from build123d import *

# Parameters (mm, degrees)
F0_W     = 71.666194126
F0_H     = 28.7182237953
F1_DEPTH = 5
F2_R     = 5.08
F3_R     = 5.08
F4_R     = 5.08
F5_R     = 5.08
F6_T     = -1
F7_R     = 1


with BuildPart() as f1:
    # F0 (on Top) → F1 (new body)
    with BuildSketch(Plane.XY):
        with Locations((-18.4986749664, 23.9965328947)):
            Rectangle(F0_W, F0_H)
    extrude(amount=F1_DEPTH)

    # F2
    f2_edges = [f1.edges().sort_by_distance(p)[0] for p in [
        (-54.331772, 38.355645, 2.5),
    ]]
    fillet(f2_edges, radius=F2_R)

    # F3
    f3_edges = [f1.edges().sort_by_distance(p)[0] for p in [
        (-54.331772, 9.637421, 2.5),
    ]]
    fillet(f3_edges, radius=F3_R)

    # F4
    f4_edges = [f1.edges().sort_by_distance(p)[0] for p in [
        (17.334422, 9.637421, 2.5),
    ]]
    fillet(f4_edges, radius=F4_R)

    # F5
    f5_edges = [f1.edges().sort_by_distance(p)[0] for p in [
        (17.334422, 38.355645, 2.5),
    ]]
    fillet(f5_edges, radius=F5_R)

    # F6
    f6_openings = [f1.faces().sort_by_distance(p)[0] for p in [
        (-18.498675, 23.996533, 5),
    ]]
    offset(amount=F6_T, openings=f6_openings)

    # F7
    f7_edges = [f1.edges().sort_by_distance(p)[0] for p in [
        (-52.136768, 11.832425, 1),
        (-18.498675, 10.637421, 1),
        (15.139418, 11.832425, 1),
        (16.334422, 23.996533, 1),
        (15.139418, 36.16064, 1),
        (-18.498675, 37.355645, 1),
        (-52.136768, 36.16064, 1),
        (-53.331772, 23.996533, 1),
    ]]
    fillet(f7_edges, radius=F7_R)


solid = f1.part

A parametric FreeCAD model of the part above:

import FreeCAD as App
import Part
import Sketcher


def edges_at(feature, points):
    """Names of the edges that pass closest to the given points."""
    edges = feature.Shape.Edges
    near = lambda p: min(range(len(edges)), key=lambda i: edges[i].distToShape(Part.Vertex(*p))[0])
    return sorted({f"Edge{near(p) + 1}" for p in points})


def faces_at(feature, points):
    """Names of the faces that lie closest to the given points."""
    faces = feature.Shape.Faces
    near = lambda p: min(range(len(faces)), key=lambda i: faces[i].distToShape(Part.Vertex(*p))[0])
    return sorted({f"Face{near(p) + 1}" for p in points})


def add_polygon(sketch, points):
    """Adds a closed chain of lines whose ends are joined by coincident constraints."""
    first, n = sketch.GeometryCount, len(points)
    for a, b in zip(points, points[1:] + points[:1]):
        sketch.addGeometry(Part.LineSegment(App.Vector(*a, 0), App.Vector(*b, 0)), False)
    for i in range(n):
        sketch.addConstraint(Sketcher.Constraint("Coincident", first + i, 2, first + (i + 1) % n, 1))

doc = App.newDocument("Part")
body = doc.addObject("PartDesign::Body", "Body")

# Sketch on XY plane
sketch1 = doc.addObject("Sketcher::SketchObject", "Sketch")
body.addObject(sketch1)
sketch1.AttachmentSupport = (doc.XY_Plane, [""])
sketch1.MapMode = "FlatFace"
add_polygon(sketch1, [(-54, 38), (-54, 10), (17, 10), (17, 38)])  # lines 0-3
sketch1.addConstraint(Sketcher.Constraint("Vertical", 0))
sketch1.addConstraint(Sketcher.Constraint("Horizontal", 1))
sketch1.addConstraint(Sketcher.Constraint("Vertical", 2))
sketch1.addConstraint(Sketcher.Constraint("Horizontal", 3))
sketch1.addConstraint(Sketcher.Constraint("DistanceX", 1, 1, 1, 2, 71.666194))
sketch1.addConstraint(Sketcher.Constraint("DistanceY", 0, 2, 0, 1, 28.718224))
sketch1.addConstraint(Sketcher.Constraint("DistanceY", -1, 1, 0, 2, 9.637421))
sketch1.addConstraint(Sketcher.Constraint("DistanceX", 0, 2, -1, 1, 54.331772))
pad1 = doc.addObject("PartDesign::Pad", "Pad")
body.addObject(pad1)
pad1.Profile = sketch1
pad1.Length = 5
doc.recompute()

fillet = doc.addObject("PartDesign::Fillet", "Fillet")
body.addObject(fillet)
fillet.Base = (pad1, edges_at(pad1, [(-54.332, 38.356, 2.5)]))
fillet.Radius = 5.08
doc.recompute()

fillet2 = doc.addObject("PartDesign::Fillet", "Fillet001")
body.addObject(fillet2)
fillet2.Base = (fillet, edges_at(fillet, [(-54.332, 9.637, 2.5)]))
fillet2.Radius = 5.08
doc.recompute()

fillet3 = doc.addObject("PartDesign::Fillet", "Fillet002")
body.addObject(fillet3)
fillet3.Base = (fillet2, edges_at(fillet2, [(17.334, 9.637, 2.5)]))
fillet3.Radius = 5.08
doc.recompute()

fillet4 = doc.addObject("PartDesign::Fillet", "Fillet003")
body.addObject(fillet4)
fillet4.Base = (fillet3, edges_at(fillet3, [(17.334, 38.356, 2.5)]))
fillet4.Radius = 5.08
doc.recompute()

thickness = doc.addObject("PartDesign::Thickness", "Thickness")
body.addObject(thickness)
thickness.Base = (fillet4, faces_at(fillet4, [(-18.499, 23.997, 5)]))
thickness.Value = 1
thickness.Reversed = True
thickness.Join = "Arc"
doc.recompute()

fillet5 = doc.addObject("PartDesign::Fillet", "Fillet004")
body.addObject(fillet5)
fillet5.Base = (thickness, edges_at(thickness, [
    (-52.137, 11.832, 1),
    (-18.499, 10.637, 1),
    (15.139, 11.832, 1),
    (16.334, 23.997, 1),
    (15.139, 36.161, 1),
    (-18.499, 37.356, 1),
    (-52.137, 36.161, 1),
    (-53.332, 23.997, 1),
]))
fillet5.Radius = 1

doc.recompute()
